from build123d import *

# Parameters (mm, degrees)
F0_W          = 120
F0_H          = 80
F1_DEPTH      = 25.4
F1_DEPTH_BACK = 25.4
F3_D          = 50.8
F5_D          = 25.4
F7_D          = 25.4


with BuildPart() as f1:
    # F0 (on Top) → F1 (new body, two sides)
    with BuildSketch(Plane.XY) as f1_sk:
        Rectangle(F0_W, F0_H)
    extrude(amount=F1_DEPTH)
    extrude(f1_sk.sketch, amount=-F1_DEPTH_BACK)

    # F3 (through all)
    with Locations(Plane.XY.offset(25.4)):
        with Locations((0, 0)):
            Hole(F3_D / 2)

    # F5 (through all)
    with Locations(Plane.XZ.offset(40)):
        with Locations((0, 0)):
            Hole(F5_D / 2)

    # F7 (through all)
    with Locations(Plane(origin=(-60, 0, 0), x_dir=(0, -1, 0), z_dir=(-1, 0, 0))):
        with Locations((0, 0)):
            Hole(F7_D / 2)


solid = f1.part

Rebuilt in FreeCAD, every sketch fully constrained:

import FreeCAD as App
import Part
import Sketcher


def add_polygon(sketch, points):
    """Adds a closed chain of lines whose ends are joined by coincident constraints."""
    first, n = sketch.GeometryCount, len(points)
    for a, b in zip(points, points[1:] + points[:1]):
        sketch.addGeometry(Part.LineSegment(App.Vector(*a, 0), App.Vector(*b, 0)), False)
    for i in range(n):
        sketch.addConstraint(Sketcher.Constraint("Coincident", first + i, 2, first + (i + 1) % n, 1))

doc = App.newDocument("Part")
body = doc.addObject("PartDesign::Body", "Body")

sketch1 = doc.addObject("Sketcher::SketchObject", "Sketch")
body.addObject(sketch1)
sketch1.AttachmentSupport = (doc.XY_Plane, [""])
sketch1.MapMode = "FlatFace"
add_polygon(sketch1, [(-60, 40), (-60, -40), (60, -40), (60, 40)])
sketch1.addConstraint(Sketcher.Constraint("Vertical", 0))
sketch1.addConstraint(Sketcher.Constraint("Horizontal", 1))
sketch1.addConstraint(Sketcher.Constraint("Vertical", 2))
sketch1.addConstraint(Sketcher.Constraint("Horizontal", 3))
sketch1.addConstraint(Sketcher.Constraint("Symmetric", 0, 2, 2, 2, -1, 1))
sketch1.addConstraint(Sketcher.Constraint("DistanceX", 1, 1, 1, 2, 120.0))
sketch1.addConstraint(Sketcher.Constraint("DistanceY", 0, 2, 0, 1, 80.0))
pad1 = doc.addObject("PartDesign::Pad", "Pad")
body.addObject(pad1)
pad1.Profile = sketch1
pad1.Type = "TwoLengths"
pad1.Length = 25.4
pad1.Length2 = 25.4

sketch2 = doc.addObject("Sketcher::SketchObject", "Sketch001")
body.addObject(sketch2)
sketch2.AttachmentSupport = (doc.XY_Plane, [""])
sketch2.MapMode = "FlatFace"
sketch2.AttachmentOffset = App.Placement(App.Vector(0, 0, 25.4), App.Rotation())
sketch2.addGeometry(Part.Circle(App.Vector(0, 0, 0), App.Vector(0, 0, 1), 25), False)
sketch2.addConstraint(Sketcher.Constraint("Coincident", 0, 3, -1, 1))
sketch2.addConstraint(Sketcher.Constraint("Diameter", 0, 50.8))
doc.recompute()
hole = doc.addObject("PartDesign::Hole", "Hole")
body.addObject(hole)
hole.Profile = sketch2
hole.ThreadType = "None"
hole.Diameter = 50.8
hole.DepthType = "ThroughAll"

sketch3 = doc.addObject("Sketcher::SketchObject", "Sketch002")
body.addObject(sketch3)
sketch3.AttachmentSupport = (doc.XZ_Plane, [""])
sketch3.MapMode = "FlatFace"
sketch3.AttachmentOffset = App.Placement(App.Vector(0, 0, 40), App.Rotation())
sketch3.addGeometry(Part.Circle(App.Vector(0, 0, 0), App.Vector(0, 0, 1), 13), False)
sketch3.addConstraint(Sketcher.Constraint("Coincident", 0, 3, -1, 1))
sketch3.addConstraint(Sketcher.Constraint("Diameter", 0, 25.4))
doc.recompute()
hole2 = doc.addObject("PartDesign::Hole", "Hole001")
body.addObject(hole2)
hole2.Profile = sketch3
hole2.ThreadType = "None"
hole2.Diameter = 25.4
hole2.DepthType = "ThroughAll"

sketch4 = doc.addObject("Sketcher::SketchObject", "Sketch003")
body.addObject(sketch4)
sketch4.AttachmentSupport = (doc.YZ_Plane, [""])
sketch4.MapMode = "FlatFace"
sketch4.AttachmentOffset = App.Placement(App.Vector(0, 0, -60), App.Rotation())
sketch4.addGeometry(Part.Circle(App.Vector(0, 0, 0), App.Vector(0, 0, 1), 13), False)
sketch4.addConstraint(Sketcher.Constraint("Coincident", 0, 3, -1, 1))
sketch4.addConstraint(Sketcher.Constraint("Diameter", 0, 25.4))
doc.recompute()
hole3 = doc.addObject("PartDesign::Hole", "Hole002")
body.addObject(hole3)
hole3.Profile = sketch4
hole3.ThreadType = "None"
hole3.Diameter = 25.4
hole3.DepthType = "ThroughAll"
hole3.Reversed = True

doc.recompute()
